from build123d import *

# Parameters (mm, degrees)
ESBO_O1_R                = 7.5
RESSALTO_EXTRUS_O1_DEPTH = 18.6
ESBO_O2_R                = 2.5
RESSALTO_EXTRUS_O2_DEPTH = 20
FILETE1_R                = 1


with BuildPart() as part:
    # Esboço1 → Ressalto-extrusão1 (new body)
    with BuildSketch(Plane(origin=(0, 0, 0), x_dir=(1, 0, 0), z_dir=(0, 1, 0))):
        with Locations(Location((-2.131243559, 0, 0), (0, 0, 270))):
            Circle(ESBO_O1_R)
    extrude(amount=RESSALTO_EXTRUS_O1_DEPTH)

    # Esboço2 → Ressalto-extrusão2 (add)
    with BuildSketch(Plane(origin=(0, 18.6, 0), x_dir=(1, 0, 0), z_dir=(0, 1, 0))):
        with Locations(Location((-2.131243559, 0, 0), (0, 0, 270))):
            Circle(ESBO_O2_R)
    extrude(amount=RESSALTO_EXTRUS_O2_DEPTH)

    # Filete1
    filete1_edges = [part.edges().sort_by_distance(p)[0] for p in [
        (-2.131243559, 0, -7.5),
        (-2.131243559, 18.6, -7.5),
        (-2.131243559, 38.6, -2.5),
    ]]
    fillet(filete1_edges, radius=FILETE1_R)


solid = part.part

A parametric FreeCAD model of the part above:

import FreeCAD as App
import Part
import Sketcher
Q = App.Units.Quantity


def edges_at(feature, points):
    """Names of the edges that pass closest to the given points."""
    edges = feature.Shape.Edges
    near = lambda p: min(range(len(edges)), key=lambda i: edges[i].distToShape(Part.Vertex(*p))[0])
    return sorted({f"Edge{near(p) + 1}" for p in points})

doc = App.newDocument("Part")
body = doc.addObject("PartDesign::Body", "Body")

# Sketch on XZ plane
sketch1 = body.newObject("Sketcher::SketchObject", "Sketch")
sketch1.AttachmentSupport = (doc.getObject("XZ_Plane"), [""])
sketch1.MapMode = "FlatFace"
sketch1.addGeometry(Part.Circle(App.Vector(-2, 0, 0), App.Vector(0, 0, 1), 8), False)
sketch1.addConstraint([
    Sketcher.Constraint("PointOnObject", 0, 3, -1),
    Sketcher.Constraint("Diameter", 0, Q("15 mm")),
    Sketcher.Constraint("DistanceX", 0, 3, -1, 1, Q("2.131244 mm")),
])
pad1 = body.newObject("PartDesign::Pad", "Pad")
pad1.Profile = sketch1
pad1.Length = 18.6
pad1.Reversed = True

# Sketch on XZ plane
sketch2 = body.newObject("Sketcher::SketchObject", "Sketch001")
sketch2.AttachmentSupport = (doc.getObject("XZ_Plane"), [""])
sketch2.MapMode = "FlatFace"
sketch2.AttachmentOffset = App.Placement(App.Vector(0, 0, -18.6), App.Rotation())
sketch2.addGeometry(Part.Circle(App.Vector(-2.1, 0, 0), App.Vector(0, 0, 1), 2.5), False)
sketch2.addConstraint([
    Sketcher.Constraint("PointOnObject", 0, 3, -1),
    Sketcher.Constraint("Diameter", 0, Q("5 mm")),
    Sketcher.Constraint("DistanceX", 0, 3, -1, 1, Q("2.131244 mm")),
])
pad2 = body.newObject("PartDesign::Pad", "Pad001")
pad2.Profile = sketch2
pad2.Length = 20
pad2.Reversed = True
doc.recompute()

fillet = body.newObject("PartDesign::Fillet", "Fillet")
fillet.Base = (pad2, edges_at(pad2, [(-2.131, 0, -7.5), (-2.131, 18.6, -7.5), (-2.131, 38.6, -2.5)]))
fillet.Radius = 1

doc.recompute()
